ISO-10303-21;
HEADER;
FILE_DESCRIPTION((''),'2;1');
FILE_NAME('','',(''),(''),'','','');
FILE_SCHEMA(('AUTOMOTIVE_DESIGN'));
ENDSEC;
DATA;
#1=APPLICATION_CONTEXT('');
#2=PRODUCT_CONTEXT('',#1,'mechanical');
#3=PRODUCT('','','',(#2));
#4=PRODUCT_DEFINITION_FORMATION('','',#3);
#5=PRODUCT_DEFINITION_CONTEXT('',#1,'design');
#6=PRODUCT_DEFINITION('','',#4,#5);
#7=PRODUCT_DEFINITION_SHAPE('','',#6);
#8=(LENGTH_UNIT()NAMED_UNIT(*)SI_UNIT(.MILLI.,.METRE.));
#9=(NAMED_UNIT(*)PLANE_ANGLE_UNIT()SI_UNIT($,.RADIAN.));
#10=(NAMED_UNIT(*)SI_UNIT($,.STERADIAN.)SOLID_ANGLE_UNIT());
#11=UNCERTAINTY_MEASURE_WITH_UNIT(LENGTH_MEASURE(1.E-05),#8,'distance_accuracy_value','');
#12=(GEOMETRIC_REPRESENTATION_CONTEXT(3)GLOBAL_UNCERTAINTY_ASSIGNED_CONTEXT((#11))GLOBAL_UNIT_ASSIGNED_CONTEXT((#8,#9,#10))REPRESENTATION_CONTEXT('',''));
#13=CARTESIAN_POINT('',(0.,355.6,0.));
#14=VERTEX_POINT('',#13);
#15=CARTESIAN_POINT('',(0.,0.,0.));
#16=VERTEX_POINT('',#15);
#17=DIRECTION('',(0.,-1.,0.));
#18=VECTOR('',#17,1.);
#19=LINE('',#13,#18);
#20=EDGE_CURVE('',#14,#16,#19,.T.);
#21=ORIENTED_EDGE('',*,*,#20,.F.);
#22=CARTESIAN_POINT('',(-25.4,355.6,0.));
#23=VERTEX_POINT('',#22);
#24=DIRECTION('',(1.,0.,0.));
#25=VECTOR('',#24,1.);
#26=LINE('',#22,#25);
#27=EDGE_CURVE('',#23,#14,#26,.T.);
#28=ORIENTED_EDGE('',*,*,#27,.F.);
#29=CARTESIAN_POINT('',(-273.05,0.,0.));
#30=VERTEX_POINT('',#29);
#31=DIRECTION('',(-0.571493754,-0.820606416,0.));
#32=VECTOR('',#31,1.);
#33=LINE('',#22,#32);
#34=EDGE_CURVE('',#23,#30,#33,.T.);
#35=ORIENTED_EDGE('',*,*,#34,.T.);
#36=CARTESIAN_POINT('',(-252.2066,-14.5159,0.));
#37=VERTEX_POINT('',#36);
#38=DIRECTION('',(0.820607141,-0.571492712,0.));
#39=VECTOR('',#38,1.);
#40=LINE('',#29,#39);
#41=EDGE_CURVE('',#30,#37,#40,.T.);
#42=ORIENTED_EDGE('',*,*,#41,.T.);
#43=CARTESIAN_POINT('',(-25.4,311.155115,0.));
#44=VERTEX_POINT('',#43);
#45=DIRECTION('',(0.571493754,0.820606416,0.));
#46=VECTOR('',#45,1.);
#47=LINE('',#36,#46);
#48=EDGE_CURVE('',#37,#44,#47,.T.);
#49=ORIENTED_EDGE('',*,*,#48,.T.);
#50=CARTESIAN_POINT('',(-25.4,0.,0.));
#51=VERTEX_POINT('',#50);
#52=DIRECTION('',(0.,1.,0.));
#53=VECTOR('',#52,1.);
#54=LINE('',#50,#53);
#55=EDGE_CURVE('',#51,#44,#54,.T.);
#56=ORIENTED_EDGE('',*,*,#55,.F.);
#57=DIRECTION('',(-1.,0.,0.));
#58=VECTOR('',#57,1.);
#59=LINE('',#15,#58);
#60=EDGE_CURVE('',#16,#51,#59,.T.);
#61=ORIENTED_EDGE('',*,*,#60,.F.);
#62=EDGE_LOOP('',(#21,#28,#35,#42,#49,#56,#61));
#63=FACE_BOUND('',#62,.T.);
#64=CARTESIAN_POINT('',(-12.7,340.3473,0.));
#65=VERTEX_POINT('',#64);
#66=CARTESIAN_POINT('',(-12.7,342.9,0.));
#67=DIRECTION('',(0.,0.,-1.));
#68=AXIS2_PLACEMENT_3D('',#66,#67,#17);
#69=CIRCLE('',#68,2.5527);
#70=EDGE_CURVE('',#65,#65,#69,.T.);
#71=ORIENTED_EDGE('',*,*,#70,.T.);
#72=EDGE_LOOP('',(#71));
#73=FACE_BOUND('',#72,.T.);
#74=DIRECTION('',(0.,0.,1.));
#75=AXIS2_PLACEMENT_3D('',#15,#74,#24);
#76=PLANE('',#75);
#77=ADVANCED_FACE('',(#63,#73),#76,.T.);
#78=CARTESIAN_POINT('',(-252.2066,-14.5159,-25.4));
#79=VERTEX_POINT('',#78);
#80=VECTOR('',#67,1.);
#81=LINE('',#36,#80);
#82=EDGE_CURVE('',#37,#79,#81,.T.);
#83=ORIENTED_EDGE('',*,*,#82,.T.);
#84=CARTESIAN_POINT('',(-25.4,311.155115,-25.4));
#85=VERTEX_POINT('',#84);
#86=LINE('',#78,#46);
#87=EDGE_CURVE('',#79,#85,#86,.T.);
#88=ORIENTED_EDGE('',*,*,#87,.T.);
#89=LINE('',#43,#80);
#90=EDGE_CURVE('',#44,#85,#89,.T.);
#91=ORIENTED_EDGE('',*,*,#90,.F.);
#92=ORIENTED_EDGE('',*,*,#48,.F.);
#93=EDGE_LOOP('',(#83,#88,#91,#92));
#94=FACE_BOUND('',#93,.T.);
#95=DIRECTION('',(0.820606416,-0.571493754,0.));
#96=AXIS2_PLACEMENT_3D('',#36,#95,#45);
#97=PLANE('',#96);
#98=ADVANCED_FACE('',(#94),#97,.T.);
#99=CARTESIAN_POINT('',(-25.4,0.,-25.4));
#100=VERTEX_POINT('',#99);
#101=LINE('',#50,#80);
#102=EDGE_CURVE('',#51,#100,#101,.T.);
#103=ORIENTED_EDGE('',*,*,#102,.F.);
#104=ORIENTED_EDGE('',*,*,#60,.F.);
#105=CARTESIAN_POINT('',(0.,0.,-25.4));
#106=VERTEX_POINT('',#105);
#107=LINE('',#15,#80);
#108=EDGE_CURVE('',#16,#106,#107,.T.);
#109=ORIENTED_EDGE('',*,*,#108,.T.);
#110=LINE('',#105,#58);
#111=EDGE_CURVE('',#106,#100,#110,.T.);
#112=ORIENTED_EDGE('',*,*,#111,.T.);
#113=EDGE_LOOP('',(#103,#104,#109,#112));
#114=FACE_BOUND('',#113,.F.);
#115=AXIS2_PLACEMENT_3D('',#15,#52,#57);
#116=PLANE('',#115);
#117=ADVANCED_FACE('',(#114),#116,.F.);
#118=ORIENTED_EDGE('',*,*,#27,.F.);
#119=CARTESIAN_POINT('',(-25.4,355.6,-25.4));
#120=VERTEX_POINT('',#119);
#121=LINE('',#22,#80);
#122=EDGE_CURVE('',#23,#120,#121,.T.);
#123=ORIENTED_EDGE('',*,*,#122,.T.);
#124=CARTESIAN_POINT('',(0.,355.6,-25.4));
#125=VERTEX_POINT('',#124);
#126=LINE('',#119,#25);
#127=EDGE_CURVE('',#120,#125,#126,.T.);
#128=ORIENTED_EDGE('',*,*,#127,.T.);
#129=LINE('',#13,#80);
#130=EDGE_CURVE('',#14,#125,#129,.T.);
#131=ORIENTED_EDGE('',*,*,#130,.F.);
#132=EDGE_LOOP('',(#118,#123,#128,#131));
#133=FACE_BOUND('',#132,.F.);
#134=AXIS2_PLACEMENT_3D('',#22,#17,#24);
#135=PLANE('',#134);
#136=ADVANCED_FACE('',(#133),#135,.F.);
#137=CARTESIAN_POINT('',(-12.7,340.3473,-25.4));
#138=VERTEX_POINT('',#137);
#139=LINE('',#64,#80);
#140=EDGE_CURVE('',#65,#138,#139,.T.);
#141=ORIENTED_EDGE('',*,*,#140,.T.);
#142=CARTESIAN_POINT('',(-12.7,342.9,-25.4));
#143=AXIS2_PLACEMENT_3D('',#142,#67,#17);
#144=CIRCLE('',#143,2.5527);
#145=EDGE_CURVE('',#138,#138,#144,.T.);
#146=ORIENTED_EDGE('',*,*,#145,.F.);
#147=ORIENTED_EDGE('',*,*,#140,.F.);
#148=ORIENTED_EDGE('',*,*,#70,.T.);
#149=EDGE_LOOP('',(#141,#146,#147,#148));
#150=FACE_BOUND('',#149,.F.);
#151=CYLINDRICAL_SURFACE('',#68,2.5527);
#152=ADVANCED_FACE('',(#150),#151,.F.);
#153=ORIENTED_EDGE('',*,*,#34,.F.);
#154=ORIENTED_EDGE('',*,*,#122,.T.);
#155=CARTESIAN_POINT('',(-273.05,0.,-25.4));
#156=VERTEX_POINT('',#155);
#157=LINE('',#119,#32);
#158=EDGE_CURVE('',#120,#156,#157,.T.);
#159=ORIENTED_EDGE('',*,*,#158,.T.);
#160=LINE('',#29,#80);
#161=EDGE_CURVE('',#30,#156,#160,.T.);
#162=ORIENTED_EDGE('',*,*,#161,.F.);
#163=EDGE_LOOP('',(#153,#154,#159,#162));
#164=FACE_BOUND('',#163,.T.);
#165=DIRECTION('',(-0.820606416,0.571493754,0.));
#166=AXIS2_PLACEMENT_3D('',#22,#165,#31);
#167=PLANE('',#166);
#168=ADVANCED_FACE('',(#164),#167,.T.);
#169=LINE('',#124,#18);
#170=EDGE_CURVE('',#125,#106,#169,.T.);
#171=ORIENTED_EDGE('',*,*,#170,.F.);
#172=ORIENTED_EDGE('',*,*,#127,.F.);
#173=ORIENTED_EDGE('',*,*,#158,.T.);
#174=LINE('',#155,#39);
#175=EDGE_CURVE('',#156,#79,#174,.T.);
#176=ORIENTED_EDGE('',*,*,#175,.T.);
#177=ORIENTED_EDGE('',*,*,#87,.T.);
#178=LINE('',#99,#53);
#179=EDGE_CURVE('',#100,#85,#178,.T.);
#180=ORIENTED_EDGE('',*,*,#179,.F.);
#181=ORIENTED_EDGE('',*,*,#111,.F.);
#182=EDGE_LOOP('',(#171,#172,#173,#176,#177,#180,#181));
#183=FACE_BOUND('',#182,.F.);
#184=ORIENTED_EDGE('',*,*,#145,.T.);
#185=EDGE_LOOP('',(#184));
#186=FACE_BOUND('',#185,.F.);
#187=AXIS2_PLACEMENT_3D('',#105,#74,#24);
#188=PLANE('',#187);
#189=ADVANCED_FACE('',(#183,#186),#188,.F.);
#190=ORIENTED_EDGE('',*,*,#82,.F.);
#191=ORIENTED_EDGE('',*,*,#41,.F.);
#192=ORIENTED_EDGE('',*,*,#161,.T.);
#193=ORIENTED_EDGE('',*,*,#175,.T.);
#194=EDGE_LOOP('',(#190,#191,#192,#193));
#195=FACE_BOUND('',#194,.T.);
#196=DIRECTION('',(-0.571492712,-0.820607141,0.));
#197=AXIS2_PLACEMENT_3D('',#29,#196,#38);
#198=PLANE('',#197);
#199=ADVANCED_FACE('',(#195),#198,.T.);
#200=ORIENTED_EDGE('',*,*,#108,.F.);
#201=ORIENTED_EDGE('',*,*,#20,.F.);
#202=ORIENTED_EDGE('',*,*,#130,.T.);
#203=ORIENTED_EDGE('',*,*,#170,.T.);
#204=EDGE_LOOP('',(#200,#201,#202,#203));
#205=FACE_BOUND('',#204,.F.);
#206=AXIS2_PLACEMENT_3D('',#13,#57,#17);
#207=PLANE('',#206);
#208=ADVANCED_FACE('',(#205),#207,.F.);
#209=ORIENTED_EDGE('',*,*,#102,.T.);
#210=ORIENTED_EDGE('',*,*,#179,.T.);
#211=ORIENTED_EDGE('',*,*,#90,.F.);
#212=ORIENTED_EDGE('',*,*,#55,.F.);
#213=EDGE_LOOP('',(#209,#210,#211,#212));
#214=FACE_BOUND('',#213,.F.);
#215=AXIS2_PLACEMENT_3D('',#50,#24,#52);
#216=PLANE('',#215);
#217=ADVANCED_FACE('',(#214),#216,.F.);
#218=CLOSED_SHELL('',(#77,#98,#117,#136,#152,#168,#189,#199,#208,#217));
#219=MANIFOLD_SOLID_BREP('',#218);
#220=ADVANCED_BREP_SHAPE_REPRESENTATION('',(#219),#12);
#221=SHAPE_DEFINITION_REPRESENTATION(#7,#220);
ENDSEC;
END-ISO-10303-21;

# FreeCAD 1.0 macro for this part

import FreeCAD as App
import Part
import Sketcher

V = App.Vector
Q = App.Units.Quantity


def add_polygon(sketch, points):
    """Adds a closed chain of lines whose ends are joined by coincident constraints."""
    first, n = sketch.GeometryCount, len(points)
    for a, b in zip(points, points[1:] + points[:1]):
        sketch.addGeometry(Part.LineSegment(App.Vector(*a, 0), App.Vector(*b, 0)), False)
    for i in range(n):
        sketch.addConstraint(Sketcher.Constraint("Coincident", first + i, 2, first + (i + 1) % n, 1))

doc = App.newDocument("Part")
params = doc.addObject("Spreadsheet::Sheet", "Params")
for row, (alias, value) in enumerate([
    ("sketch1_width", "1 in"),
    ("sketch1_height", "14 in"),
    ("sketch1_length", "1 in"),
    ("pad1_length", "1 in"),
    ("sketch2_diameter", "0.201 in"),
    ("hole_diameter", "0.201 in"),
], start=1):
    params.set(f"A{row}", alias)
    params.set(f"B{row}", "=" + value)
    params.setAlias(f"B{row}", alias)

body = doc.addObject("PartDesign::Body", "Body")

# Sketch on XY plane
sketch1 = body.newObject("Sketcher::SketchObject", "Sketch")
sketch1.AttachmentSupport = (doc.getObject("XY_Plane"), [""])
sketch1.MapMode = "FlatFace"
add_polygon(sketch1, [(-25, 0), (0, 0), (0, 356), (-25, 356), (-273, 0), (-252, -15), (-25, 311)])  # lines 0-6
sketch1.addConstraint([
    Sketcher.Constraint("Horizontal", 0),
    Sketcher.Constraint("Vertical", 1),
    Sketcher.Constraint("Horizontal", 2),
    Sketcher.Constraint("Vertical", 6),
    Sketcher.Constraint("Coincident", 0, 2, -1, 1),
    Sketcher.Constraint("PointOnObject", 3, 2, -1),
    Sketcher.Constraint("Perpendicular", 3, 4),
    Sketcher.Constraint("Perpendicular", 4, 5),
    Sketcher.Constraint("Vertical", 2, 2, 5, 2),
    Sketcher.Constraint("DistanceX", 0, 1, 0, 2, Q("1 in")),
    Sketcher.Constraint("DistanceY", 1, 1, 1, 2, Q("14 in")),
    Sketcher.Constraint("Distance", 4, Q("1 in")),
    Sketcher.Constraint("DistanceX", 3, 2, -1, 1, Q("10.75 in")),
])
sketch1.setExpression("Constraints[16]", "Params.sketch1_width")
sketch1.setExpression("Constraints[17]", "Params.sketch1_height")
sketch1.setExpression("Constraints[18]", "Params.sketch1_length")
pad1 = body.newObject("PartDesign::Pad", "Pad")
pad1.Profile = sketch1
pad1.setExpression("Length", "Params.pad1_length")
pad1.Reversed = True

# Sketch on XY plane
sketch2 = body.newObject("Sketcher::SketchObject", "Sketch001")
sketch2.AttachmentSupport = (doc.getObject("XY_Plane"), [""])
sketch2.MapMode = "FlatFace"
sketch2.addGeometry(Part.Circle(V(-12.7, 342.9, 0), V(0, 0, 1), 2.6), False)
sketch2.addConstraint([
    Sketcher.Constraint("Diameter", 0, Q("0.201 in")),
    Sketcher.Constraint("DistanceX", 0, 3, -1, 1, Q("0.5 in")),
    Sketcher.Constraint("DistanceY", -1, 1, 0, 3, Q("13.5 in")),
])
sketch2.setExpression("Constraints[0]", "Params.sketch2_diameter")
doc.recompute()
hole = body.newObject("PartDesign::Hole", "Hole")
hole.Profile = sketch2
hole.ThreadType = "None"
hole.setExpression("Diameter", "Params.hole_diameter")
hole.DepthType = "ThroughAll"

doc.recompute()
